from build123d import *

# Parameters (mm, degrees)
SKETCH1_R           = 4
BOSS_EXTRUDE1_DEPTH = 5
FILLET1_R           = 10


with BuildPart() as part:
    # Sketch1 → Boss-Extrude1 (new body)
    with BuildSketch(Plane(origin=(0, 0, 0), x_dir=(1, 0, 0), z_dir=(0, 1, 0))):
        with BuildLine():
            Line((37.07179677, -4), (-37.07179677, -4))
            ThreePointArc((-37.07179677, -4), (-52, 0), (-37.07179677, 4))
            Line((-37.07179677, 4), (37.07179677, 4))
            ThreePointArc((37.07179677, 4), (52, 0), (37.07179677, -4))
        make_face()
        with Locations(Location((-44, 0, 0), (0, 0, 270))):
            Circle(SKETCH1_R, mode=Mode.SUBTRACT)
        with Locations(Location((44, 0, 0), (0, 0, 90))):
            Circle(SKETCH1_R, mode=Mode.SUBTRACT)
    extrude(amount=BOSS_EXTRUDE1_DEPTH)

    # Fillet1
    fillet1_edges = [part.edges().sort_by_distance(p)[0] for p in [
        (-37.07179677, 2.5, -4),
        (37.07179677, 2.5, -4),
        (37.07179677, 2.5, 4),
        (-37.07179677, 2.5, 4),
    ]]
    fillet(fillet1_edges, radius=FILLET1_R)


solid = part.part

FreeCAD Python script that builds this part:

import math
import FreeCAD as App
import Part
import Sketcher
Q = App.Units.Quantity


def edges_at(feature, points):
    """Names of the edges that pass closest to the given points."""
    edges = feature.Shape.Edges
    near = lambda p: min(range(len(edges)), key=lambda i: edges[i].distToShape(Part.Vertex(*p))[0])
    return sorted({f"Edge{near(p) + 1}" for p in points})

doc = App.newDocument("Part")
body = doc.addObject("PartDesign::Body", "Body")

sketch1 = doc.addObject("Sketcher::SketchObject", "Sketch")
body.addObject(sketch1)
sketch1.AttachmentSupport = (doc.XZ_Plane, [""])
sketch1.MapMode = "FlatFace"
sketch1.addGeometry([
    Part.LineSegment(App.Vector(-37.071797, 4, 0), App.Vector(37.071797, 4, 0)),
    Part.ArcOfCircle(Part.Circle(App.Vector(44, 0, 0), App.Vector(0, 0, 1), 8), math.radians(-150), math.radians(150)),
    Part.LineSegment(App.Vector(37.071797, -4, 0), App.Vector(-37.071797, -4, 0)),
    Part.ArcOfCircle(Part.Circle(App.Vector(-44, 0, 0), App.Vector(0, 0, 1), 8), math.radians(30), math.radians(330)),
    Part.Circle(App.Vector(44, 0, 0), App.Vector(0, 0, 1), 4),
    Part.Circle(App.Vector(-44, 0, 0), App.Vector(0, 0, 1), 4),
], False)
sketch1.addConstraint([
    Sketcher.Constraint("Coincident", 0, 2, 1, 2),
    Sketcher.Constraint("Coincident", 1, 1, 2, 1),
    Sketcher.Constraint("Coincident", 2, 2, 3, 2),
    Sketcher.Constraint("Coincident", 3, 1, 0, 1),
    Sketcher.Constraint("Horizontal", 0),
    Sketcher.Constraint("Horizontal", 2),
    Sketcher.Constraint("Coincident", 4, 3, 1, 3),
    Sketcher.Constraint("Coincident", 5, 3, 3, 3),
    Sketcher.Constraint("Equal", 1, 3),
    Sketcher.Constraint("Equal", 4, 5),
    Sketcher.Constraint("Symmetric", 1, 3, 3, 3, -1, 1),
    Sketcher.Constraint("Symmetric", 0, 2, 1, 1, -1),
    Sketcher.Constraint("Diameter", 4, Q("8 mm")),
    Sketcher.Constraint("Radius", 1, Q("8 mm")),
    Sketcher.Constraint("DistanceX", -1, 1, 1, 3, Q("44 mm")),
    Sketcher.Constraint("DistanceY", -1, 1, 0, 2, Q("4 mm")),
])
pad1 = doc.addObject("PartDesign::Pad", "Pad")
body.addObject(pad1)
pad1.Profile = sketch1
pad1.Length = 5
pad1.Reversed = True
doc.recompute()

fillet = doc.addObject("PartDesign::Fillet", "Fillet")
body.addObject(fillet)
fillet.Base = (pad1, edges_at(pad1, [
    (-37.072, 2.5, -4),
    (37.072, 2.5, -4),
    (37.072, 2.5, 4),
    (-37.072, 2.5, 4),
]))
fillet.Radius = 10

doc.recompute()
